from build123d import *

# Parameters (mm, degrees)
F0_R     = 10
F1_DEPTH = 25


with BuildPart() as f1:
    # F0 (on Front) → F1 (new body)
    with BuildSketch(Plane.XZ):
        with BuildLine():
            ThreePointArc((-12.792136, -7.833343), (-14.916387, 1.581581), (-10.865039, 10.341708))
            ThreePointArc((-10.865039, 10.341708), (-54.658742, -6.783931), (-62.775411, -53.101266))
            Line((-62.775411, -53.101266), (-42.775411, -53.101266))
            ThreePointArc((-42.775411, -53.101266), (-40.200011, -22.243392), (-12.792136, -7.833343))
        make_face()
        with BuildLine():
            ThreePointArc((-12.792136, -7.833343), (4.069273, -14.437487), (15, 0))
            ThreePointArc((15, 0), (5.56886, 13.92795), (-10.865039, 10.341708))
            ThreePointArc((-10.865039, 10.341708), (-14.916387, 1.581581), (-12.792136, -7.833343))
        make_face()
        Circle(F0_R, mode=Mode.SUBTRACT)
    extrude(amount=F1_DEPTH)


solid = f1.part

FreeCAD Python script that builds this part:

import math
import FreeCAD as App
import Part
import Sketcher
from FreeCAD import Vector
Q = App.Units.Quantity

doc = App.newDocument("Part")
body = doc.addObject("PartDesign::Body", "Body")

# Sketch on XZ plane
sketch1 = body.newObject("Sketcher::SketchObject", "Sketch")
sketch1.AttachmentSupport = (doc.getObject("XZ_Plane"), [""])
sketch1.MapMode = "FlatFace"
sketch1.addGeometry(Part.ArcOfCircle(Part.Circle(Vector(-18, -37, 0), Vector(0, 0, 1), 48), math.radians(82), math.radians(199)), False)
sketch1.addGeometry(Part.LineSegment(Vector(-63, -53, 0), Vector(-43, -53, 0)), False)
sketch1.addGeometry(Part.ArcOfCircle(Part.Circle(Vector(-13, -40, 0), Vector(0, 0, 1), 32), math.radians(89), math.radians(204)), False)
sketch1.addGeometry(Part.ArcOfCircle(Part.Circle(Vector(0, 0, 0), Vector(0, 0, 1), 15), math.radians(-149), math.radians(0)), False)
sketch1.addGeometry(Part.ArcOfCircle(Part.Circle(Vector(0, 0, 0), Vector(0, 0, 1), 15), math.radians(0), math.radians(136)), False)
sketch1.addGeometry(Part.Circle(Vector(0, 0, 0), Vector(0, 0, 1), 10), False)
sketch1.addConstraint(Sketcher.Constraint("Coincident", 0, 2, 1, 1))
sketch1.addConstraint(Sketcher.Constraint("Coincident", 1, 2, 2, 2))
sketch1.addConstraint(Sketcher.Constraint("Coincident", 2, 1, 3, 1))
sketch1.addConstraint(Sketcher.Constraint("Tangent", 3, 2, 4, 1))
sketch1.addConstraint(Sketcher.Constraint("Coincident", 4, 2, 0, 1))
sketch1.addConstraint(Sketcher.Constraint("Horizontal", 1))
sketch1.addConstraint(Sketcher.Constraint("Coincident", 3, 3, -1, 1))
sketch1.addConstraint(Sketcher.Constraint("Coincident", 5, 3, -1, 1))
sketch1.addConstraint(Sketcher.Constraint("Equal", 3, 4))
sketch1.addConstraint(Sketcher.Constraint("PointOnObject", 3, 2, -1))
sketch1.addConstraint(Sketcher.Constraint("Diameter", 5, Q("20 mm")))
sketch1.addConstraint(Sketcher.Constraint("Radius", 3, Q("15 mm")))
sketch1.addConstraint(Sketcher.Constraint("DistanceX", 1, 1, 1, 2, Q("20 mm")))
sketch1.addConstraint(Sketcher.Constraint("Radius", 0, Q("47.967073 mm")))
sketch1.addConstraint(Sketcher.Constraint("Radius", 2, Q("32.191417 mm")))
sketch1.addConstraint(Sketcher.Constraint("DistanceX", 2, 3, -1, 1, Q("13.361801 mm")))
sketch1.addConstraint(Sketcher.Constraint("DistanceY", 0, 2, 0, 3, Q("15.941901 mm")))
sketch1.addConstraint(Sketcher.Constraint("DistanceY", 2, 3, -1, 1, Q("40.019719 mm")))
sketch1.addConstraint(Sketcher.Constraint("DistanceX", 0, 2, -1, 1, Q("62.775411 mm")))
pad1 = body.newObject("PartDesign::Pad", "Pad")
pad1.Profile = sketch1
pad1.Length = 25

doc.recompute()
